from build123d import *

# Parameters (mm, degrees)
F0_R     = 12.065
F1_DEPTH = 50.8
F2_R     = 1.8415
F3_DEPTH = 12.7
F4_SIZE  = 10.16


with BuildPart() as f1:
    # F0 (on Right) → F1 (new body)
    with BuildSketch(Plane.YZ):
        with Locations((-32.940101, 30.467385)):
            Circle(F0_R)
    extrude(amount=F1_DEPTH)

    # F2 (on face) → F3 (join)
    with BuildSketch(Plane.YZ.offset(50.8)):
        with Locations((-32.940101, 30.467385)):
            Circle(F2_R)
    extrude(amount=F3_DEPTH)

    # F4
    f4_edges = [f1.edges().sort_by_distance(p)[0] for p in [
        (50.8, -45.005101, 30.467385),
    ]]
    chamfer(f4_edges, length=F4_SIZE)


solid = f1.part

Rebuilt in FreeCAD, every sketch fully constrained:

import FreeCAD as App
import Part
import Sketcher
Q = App.Units.Quantity


def edges_at(feature, points):
    """Names of the edges that pass closest to the given points."""
    edges = feature.Shape.Edges
    near = lambda p: min(range(len(edges)), key=lambda i: edges[i].distToShape(Part.Vertex(*p))[0])
    return sorted({f"Edge{near(p) + 1}" for p in points})

doc = App.newDocument("Part")
body = doc.addObject("PartDesign::Body", "Body")

# Sketch on YZ plane
sketch1 = doc.addObject("Sketcher::SketchObject", "Sketch")
body.addObject(sketch1)
sketch1.AttachmentSupport = (doc.YZ_Plane, [""])
sketch1.MapMode = "FlatFace"
sketch1.addGeometry(Part.Circle(App.Vector(-32.940101, 30.467385, 0), App.Vector(0, 0, 1), 12.065), False)
sketch1.addConstraint(Sketcher.Constraint("Diameter", 0, Q("0.95 in")))
sketch1.addConstraint(Sketcher.Constraint("DistanceX", 0, 3, -1, 1, Q("32.940101 mm")))
sketch1.addConstraint(Sketcher.Constraint("DistanceY", -1, 1, 0, 3, Q("30.467385 mm")))
pad1 = doc.addObject("PartDesign::Pad", "Pad")
body.addObject(pad1)
pad1.Profile = sketch1
pad1.Length = Q("2 in")

# Sketch on YZ plane
sketch2 = doc.addObject("Sketcher::SketchObject", "Sketch001")
body.addObject(sketch2)
sketch2.AttachmentSupport = (doc.YZ_Plane, [""])
sketch2.MapMode = "FlatFace"
sketch2.AttachmentOffset = App.Placement(App.Vector(0, 0, 2 * 25.4), App.Rotation())
sketch2.addGeometry(Part.Circle(App.Vector(-32.940101, 30.467385, 0), App.Vector(0, 0, 1), 1.8415), False)
sketch2.addConstraint(Sketcher.Constraint("Diameter", 0, Q("0.145 in")))
sketch2.addConstraint(Sketcher.Constraint("DistanceX", 0, 3, -1, 1, Q("32.940101 mm")))
sketch2.addConstraint(Sketcher.Constraint("DistanceY", -1, 1, 0, 3, Q("30.467385 mm")))
pad2 = doc.addObject("PartDesign::Pad", "Pad001")
body.addObject(pad2)
pad2.Profile = sketch2
pad2.Length = Q("0.5 in")
doc.recompute()

chamfer = doc.addObject("PartDesign::Chamfer", "Chamfer")
body.addObject(chamfer)
chamfer.Base = (pad2, edges_at(pad2, [(50.8, -45.005, 30.467)]))
chamfer.Size = Q("0.4 in")

doc.recompute()
